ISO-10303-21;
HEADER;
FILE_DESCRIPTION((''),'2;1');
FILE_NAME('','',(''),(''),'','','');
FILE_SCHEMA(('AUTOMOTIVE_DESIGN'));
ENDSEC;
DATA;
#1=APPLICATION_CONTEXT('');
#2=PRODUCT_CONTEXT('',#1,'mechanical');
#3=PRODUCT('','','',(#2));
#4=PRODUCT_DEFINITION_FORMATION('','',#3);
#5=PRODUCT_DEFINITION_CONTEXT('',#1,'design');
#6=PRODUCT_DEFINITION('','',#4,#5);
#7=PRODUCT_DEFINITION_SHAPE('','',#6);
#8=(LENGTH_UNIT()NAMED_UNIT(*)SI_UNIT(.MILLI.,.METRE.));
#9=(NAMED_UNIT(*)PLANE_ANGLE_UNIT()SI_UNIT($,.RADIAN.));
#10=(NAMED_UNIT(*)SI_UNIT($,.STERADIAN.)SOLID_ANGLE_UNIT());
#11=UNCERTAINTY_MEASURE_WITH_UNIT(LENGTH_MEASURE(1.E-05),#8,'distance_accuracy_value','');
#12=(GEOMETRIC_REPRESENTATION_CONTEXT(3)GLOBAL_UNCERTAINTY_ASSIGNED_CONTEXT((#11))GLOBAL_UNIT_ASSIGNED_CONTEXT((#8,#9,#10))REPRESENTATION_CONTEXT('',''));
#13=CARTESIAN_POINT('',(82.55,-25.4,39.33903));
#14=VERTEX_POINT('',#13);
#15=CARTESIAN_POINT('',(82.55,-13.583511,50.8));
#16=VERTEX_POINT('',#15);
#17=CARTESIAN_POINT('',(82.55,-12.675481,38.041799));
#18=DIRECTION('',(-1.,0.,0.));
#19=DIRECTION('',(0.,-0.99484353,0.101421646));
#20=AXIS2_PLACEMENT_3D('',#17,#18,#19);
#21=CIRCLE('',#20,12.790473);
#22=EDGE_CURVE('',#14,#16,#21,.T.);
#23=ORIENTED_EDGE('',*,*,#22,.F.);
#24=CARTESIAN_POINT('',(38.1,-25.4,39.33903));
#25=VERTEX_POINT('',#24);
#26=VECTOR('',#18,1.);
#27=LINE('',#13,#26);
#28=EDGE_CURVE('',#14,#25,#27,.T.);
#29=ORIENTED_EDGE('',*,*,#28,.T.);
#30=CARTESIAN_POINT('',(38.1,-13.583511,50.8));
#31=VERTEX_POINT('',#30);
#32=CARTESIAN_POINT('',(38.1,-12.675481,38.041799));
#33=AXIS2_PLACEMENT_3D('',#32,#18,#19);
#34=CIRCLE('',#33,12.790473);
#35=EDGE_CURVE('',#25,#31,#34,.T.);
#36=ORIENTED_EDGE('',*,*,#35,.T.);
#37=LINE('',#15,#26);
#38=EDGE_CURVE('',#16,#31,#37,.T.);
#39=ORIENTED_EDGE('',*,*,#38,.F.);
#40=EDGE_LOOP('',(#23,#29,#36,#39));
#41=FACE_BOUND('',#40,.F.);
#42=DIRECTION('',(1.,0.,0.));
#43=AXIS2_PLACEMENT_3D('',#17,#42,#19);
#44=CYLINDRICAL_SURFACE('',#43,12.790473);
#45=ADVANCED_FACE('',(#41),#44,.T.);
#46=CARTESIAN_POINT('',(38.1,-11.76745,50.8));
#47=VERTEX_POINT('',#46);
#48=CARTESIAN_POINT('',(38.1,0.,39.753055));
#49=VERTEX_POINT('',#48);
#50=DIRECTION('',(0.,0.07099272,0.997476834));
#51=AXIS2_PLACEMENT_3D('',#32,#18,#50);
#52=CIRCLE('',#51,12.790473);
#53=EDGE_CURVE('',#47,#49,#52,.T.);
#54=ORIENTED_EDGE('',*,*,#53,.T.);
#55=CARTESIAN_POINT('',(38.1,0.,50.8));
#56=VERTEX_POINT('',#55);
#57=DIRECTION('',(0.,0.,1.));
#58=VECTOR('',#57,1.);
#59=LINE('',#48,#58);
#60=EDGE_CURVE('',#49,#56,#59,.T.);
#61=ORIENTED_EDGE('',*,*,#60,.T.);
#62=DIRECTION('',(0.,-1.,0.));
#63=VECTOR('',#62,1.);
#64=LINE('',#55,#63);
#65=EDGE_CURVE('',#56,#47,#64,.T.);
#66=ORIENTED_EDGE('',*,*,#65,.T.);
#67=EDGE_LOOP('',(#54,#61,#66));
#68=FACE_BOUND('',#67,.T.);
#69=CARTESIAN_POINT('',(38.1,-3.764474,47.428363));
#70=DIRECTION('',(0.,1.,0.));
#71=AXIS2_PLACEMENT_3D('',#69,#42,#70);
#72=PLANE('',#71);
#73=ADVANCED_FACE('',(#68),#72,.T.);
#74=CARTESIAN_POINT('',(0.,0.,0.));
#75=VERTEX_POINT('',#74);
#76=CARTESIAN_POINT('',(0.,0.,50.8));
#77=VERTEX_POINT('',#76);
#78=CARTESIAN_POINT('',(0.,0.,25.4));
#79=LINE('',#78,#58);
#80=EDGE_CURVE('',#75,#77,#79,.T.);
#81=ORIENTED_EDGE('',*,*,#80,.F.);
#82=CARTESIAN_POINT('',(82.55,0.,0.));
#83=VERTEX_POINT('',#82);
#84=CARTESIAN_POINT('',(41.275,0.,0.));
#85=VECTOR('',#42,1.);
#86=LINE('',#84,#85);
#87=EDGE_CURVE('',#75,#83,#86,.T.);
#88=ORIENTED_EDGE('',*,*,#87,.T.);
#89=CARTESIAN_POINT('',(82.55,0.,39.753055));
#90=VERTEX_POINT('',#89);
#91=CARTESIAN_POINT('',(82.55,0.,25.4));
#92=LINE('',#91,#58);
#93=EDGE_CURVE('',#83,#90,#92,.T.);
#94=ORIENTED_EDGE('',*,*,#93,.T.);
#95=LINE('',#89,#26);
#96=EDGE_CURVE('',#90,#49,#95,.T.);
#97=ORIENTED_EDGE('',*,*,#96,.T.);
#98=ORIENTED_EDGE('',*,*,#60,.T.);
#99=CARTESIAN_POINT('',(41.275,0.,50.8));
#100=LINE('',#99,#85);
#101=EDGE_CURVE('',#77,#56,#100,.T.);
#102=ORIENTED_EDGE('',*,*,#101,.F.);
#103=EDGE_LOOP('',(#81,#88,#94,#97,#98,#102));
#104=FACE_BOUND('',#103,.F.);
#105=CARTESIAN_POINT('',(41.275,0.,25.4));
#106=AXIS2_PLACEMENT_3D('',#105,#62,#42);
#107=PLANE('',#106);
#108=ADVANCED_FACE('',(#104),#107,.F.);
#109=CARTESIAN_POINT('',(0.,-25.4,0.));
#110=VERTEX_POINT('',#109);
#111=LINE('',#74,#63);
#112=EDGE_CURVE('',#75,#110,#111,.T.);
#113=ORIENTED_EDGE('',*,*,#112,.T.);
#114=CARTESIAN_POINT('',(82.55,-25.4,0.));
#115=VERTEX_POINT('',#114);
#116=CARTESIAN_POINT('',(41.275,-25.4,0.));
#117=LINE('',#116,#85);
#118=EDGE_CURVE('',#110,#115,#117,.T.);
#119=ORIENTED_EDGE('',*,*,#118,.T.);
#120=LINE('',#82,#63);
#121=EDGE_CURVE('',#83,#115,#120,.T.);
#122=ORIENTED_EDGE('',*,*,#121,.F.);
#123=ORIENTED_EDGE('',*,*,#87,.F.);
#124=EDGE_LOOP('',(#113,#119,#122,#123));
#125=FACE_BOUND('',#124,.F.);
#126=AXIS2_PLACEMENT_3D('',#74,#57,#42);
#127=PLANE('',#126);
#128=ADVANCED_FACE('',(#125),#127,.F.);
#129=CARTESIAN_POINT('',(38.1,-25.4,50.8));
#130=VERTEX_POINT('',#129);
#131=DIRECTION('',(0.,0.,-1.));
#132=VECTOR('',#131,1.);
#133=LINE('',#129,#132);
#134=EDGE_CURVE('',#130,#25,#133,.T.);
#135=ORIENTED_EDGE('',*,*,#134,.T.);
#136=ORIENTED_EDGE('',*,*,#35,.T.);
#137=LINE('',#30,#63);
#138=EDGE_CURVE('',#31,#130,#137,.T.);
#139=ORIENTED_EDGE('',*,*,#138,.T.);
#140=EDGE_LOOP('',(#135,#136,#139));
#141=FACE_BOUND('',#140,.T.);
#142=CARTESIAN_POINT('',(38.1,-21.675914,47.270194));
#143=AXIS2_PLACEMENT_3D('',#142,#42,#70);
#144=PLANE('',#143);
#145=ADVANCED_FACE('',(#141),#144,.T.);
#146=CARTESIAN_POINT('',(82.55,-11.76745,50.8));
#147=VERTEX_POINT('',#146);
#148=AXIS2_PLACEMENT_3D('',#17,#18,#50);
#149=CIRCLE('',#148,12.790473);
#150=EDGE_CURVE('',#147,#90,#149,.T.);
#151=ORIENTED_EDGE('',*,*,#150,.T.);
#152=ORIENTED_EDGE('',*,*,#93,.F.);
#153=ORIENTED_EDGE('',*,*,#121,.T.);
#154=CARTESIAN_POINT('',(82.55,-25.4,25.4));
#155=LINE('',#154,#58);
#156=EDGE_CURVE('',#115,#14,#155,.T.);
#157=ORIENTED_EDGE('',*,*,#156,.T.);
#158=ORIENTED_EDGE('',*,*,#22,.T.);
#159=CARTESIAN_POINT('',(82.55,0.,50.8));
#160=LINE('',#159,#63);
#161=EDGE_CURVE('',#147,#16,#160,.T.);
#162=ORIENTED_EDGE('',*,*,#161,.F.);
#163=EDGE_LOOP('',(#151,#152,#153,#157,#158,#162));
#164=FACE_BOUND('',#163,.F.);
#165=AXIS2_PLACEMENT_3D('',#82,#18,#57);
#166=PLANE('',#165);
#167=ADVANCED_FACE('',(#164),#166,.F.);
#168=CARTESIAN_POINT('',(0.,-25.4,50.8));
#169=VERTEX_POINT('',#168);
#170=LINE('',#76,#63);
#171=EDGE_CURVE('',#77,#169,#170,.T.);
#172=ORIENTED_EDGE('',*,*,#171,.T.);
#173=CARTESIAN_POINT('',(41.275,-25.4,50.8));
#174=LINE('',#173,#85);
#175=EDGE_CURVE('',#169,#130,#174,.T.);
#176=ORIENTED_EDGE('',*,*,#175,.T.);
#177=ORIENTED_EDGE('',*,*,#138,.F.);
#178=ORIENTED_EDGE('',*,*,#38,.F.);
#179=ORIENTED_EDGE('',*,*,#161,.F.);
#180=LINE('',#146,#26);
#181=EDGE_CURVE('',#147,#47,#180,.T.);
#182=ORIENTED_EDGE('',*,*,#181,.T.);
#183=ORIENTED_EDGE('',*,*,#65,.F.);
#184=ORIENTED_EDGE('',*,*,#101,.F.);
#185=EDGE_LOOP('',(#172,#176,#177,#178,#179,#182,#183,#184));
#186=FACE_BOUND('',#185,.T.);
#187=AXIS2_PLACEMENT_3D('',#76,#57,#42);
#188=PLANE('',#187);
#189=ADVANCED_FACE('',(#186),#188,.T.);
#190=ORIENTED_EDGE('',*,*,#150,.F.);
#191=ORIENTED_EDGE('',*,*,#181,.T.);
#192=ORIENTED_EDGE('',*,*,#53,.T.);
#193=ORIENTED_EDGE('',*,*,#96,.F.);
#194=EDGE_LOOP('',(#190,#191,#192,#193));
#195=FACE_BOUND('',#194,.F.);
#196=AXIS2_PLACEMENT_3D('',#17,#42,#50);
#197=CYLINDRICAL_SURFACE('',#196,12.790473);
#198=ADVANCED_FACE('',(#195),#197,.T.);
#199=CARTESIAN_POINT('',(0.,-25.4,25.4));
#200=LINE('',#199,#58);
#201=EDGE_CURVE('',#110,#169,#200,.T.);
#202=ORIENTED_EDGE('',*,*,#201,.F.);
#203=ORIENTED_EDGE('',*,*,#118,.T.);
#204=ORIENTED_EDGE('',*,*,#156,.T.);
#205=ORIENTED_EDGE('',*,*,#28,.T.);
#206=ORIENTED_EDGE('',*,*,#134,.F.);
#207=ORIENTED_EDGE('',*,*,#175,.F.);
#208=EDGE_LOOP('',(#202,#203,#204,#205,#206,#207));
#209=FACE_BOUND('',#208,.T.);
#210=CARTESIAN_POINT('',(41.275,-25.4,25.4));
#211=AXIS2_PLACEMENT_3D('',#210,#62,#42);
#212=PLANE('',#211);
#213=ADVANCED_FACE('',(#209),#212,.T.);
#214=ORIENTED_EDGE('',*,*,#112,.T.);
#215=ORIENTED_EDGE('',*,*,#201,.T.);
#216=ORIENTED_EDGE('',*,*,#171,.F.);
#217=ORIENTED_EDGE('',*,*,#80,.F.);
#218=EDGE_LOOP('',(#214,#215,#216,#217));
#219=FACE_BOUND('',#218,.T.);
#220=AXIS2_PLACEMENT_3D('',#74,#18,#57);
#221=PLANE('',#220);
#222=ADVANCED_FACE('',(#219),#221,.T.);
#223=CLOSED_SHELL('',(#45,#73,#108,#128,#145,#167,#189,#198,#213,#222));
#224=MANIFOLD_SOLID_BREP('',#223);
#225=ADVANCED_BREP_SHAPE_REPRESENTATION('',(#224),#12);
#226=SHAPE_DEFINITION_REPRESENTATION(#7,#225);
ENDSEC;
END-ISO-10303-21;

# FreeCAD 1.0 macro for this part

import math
import FreeCAD as App
import Part
import Sketcher

V = App.Vector
Q = App.Units.Quantity


def add_polygon(sketch, points):
    """Adds a closed chain of lines whose ends are joined by coincident constraints."""
    first, n = sketch.GeometryCount, len(points)
    for a, b in zip(points, points[1:] + points[:1]):
        sketch.addGeometry(Part.LineSegment(App.Vector(*a, 0), App.Vector(*b, 0)), False)
    for i in range(n):
        sketch.addConstraint(Sketcher.Constraint("Coincident", first + i, 2, first + (i + 1) % n, 1))

doc = App.newDocument("Part")
params = doc.addObject("Spreadsheet::Sheet", "Params")
for row, (alias, value) in enumerate([
    ("sketch1_height", "2 in"),
    ("sketch1_width", "3.25 in"),
    ("pad1_length", "1 in"),
    ("pocket1_length", "1.75 in"),
], start=1):
    params.set(f"A{row}", alias)
    params.set(f"B{row}", "=" + value)
    params.setAlias(f"B{row}", alias)

body = doc.addObject("PartDesign::Body", "Body")

# Sketch on XZ plane
sketch1 = body.newObject("Sketcher::SketchObject", "Sketch")
sketch1.AttachmentSupport = (doc.getObject("XZ_Plane"), [""])
sketch1.MapMode = "FlatFace"
add_polygon(sketch1, [(0, 51), (0, 0), (83, 0), (83, 51)])  # lines 0-3
sketch1.addConstraint(Sketcher.Constraint("Vertical", 0))
sketch1.addConstraint(Sketcher.Constraint("Horizontal", 1))
sketch1.addConstraint(Sketcher.Constraint("Vertical", 2))
sketch1.addConstraint(Sketcher.Constraint("Horizontal", 3))
sketch1.addConstraint(Sketcher.Constraint("Coincident", 0, 2, -1, 1))
sketch1.addConstraint(Sketcher.Constraint("DistanceY", 0, 2, 0, 1, Q("2 in")))
sketch1.addConstraint(Sketcher.Constraint("DistanceX", 1, 1, 1, 2, Q("3.25 in")))
sketch1.setExpression("Constraints[9]", "Params.sketch1_height")
sketch1.setExpression("Constraints[10]", "Params.sketch1_width")
pad1 = body.newObject("PartDesign::Pad", "Pad")
pad1.Profile = sketch1
pad1.setExpression("Length", "Params.pad1_length")

# Sketch on YZ plane
sketch2 = body.newObject("Sketcher::SketchObject", "Sketch001")
sketch2.AttachmentSupport = (doc.getObject("YZ_Plane"), [""])
sketch2.MapMode = "FlatFace"
sketch2.AttachmentOffset = App.Placement(V(0, 0, 3.25 * 25.4), App.Rotation())
sketch2.addGeometry(Part.ArcOfCircle(Part.Circle(V(-13, 38, 0), V(0, 0, 1), 13), math.radians(8), math.radians(86)), False)
sketch2.addGeometry(Part.LineSegment(V(0, 40, 0), V(0, 51, 0)), False)
sketch2.addGeometry(Part.LineSegment(V(0, 51, 0), V(-12, 51, 0)), False)
sketch2.addGeometry(Part.ArcOfCircle(Part.Circle(V(-13, 38, 0), V(0, 0, 1), 13), math.radians(94), math.radians(174)), False)
sketch2.addGeometry(Part.LineSegment(V(-14, 51, 0), V(-25, 51, 0)), False)
sketch2.addGeometry(Part.LineSegment(V(-25, 51, 0), V(-25, 39, 0)), False)
sketch2.addConstraint(Sketcher.Constraint("Coincident", 0, 1, 1, 1))
sketch2.addConstraint(Sketcher.Constraint("Coincident", 1, 2, 2, 1))
sketch2.addConstraint(Sketcher.Constraint("Coincident", 2, 2, 0, 2))
sketch2.addConstraint(Sketcher.Constraint("Coincident", 3, 1, 4, 1))
sketch2.addConstraint(Sketcher.Constraint("Coincident", 4, 2, 5, 1))
sketch2.addConstraint(Sketcher.Constraint("Coincident", 5, 2, 3, 2))
sketch2.addConstraint(Sketcher.Constraint("Vertical", 1))
sketch2.addConstraint(Sketcher.Constraint("Horizontal", 2))
sketch2.addConstraint(Sketcher.Constraint("Horizontal", 4))
sketch2.addConstraint(Sketcher.Constraint("Vertical", 5))
sketch2.addConstraint(Sketcher.Constraint("Coincident", 3, 3, 0, 3))
sketch2.addConstraint(Sketcher.Constraint("Equal", 0, 3))
sketch2.addConstraint(Sketcher.Constraint("PointOnObject", 0, 1, -2))
sketch2.addConstraint(Sketcher.Constraint("Horizontal", 2, 2, 3, 1))
sketch2.addConstraint(Sketcher.Constraint("DistanceY", -1, 1, 1, 2, Q("2 in")))
sketch2.addConstraint(Sketcher.Constraint("DistanceX", 4, 2, -1, 1, Q("1 in")))
sketch2.addConstraint(Sketcher.Constraint("Radius", 0, Q("12.790473 mm")))
sketch2.addConstraint(Sketcher.Constraint("DistanceX", 2, 2, 2, 1, Q("11.76745 mm")))
sketch2.addConstraint(Sketcher.Constraint("DistanceX", 4, 2, 4, 1, Q("11.816489 mm")))
pocket1 = body.newObject("PartDesign::Pocket", "Pocket")
pocket1.Profile = sketch2
pocket1.setExpression("Length", "Params.pocket1_length")

doc.recompute()
